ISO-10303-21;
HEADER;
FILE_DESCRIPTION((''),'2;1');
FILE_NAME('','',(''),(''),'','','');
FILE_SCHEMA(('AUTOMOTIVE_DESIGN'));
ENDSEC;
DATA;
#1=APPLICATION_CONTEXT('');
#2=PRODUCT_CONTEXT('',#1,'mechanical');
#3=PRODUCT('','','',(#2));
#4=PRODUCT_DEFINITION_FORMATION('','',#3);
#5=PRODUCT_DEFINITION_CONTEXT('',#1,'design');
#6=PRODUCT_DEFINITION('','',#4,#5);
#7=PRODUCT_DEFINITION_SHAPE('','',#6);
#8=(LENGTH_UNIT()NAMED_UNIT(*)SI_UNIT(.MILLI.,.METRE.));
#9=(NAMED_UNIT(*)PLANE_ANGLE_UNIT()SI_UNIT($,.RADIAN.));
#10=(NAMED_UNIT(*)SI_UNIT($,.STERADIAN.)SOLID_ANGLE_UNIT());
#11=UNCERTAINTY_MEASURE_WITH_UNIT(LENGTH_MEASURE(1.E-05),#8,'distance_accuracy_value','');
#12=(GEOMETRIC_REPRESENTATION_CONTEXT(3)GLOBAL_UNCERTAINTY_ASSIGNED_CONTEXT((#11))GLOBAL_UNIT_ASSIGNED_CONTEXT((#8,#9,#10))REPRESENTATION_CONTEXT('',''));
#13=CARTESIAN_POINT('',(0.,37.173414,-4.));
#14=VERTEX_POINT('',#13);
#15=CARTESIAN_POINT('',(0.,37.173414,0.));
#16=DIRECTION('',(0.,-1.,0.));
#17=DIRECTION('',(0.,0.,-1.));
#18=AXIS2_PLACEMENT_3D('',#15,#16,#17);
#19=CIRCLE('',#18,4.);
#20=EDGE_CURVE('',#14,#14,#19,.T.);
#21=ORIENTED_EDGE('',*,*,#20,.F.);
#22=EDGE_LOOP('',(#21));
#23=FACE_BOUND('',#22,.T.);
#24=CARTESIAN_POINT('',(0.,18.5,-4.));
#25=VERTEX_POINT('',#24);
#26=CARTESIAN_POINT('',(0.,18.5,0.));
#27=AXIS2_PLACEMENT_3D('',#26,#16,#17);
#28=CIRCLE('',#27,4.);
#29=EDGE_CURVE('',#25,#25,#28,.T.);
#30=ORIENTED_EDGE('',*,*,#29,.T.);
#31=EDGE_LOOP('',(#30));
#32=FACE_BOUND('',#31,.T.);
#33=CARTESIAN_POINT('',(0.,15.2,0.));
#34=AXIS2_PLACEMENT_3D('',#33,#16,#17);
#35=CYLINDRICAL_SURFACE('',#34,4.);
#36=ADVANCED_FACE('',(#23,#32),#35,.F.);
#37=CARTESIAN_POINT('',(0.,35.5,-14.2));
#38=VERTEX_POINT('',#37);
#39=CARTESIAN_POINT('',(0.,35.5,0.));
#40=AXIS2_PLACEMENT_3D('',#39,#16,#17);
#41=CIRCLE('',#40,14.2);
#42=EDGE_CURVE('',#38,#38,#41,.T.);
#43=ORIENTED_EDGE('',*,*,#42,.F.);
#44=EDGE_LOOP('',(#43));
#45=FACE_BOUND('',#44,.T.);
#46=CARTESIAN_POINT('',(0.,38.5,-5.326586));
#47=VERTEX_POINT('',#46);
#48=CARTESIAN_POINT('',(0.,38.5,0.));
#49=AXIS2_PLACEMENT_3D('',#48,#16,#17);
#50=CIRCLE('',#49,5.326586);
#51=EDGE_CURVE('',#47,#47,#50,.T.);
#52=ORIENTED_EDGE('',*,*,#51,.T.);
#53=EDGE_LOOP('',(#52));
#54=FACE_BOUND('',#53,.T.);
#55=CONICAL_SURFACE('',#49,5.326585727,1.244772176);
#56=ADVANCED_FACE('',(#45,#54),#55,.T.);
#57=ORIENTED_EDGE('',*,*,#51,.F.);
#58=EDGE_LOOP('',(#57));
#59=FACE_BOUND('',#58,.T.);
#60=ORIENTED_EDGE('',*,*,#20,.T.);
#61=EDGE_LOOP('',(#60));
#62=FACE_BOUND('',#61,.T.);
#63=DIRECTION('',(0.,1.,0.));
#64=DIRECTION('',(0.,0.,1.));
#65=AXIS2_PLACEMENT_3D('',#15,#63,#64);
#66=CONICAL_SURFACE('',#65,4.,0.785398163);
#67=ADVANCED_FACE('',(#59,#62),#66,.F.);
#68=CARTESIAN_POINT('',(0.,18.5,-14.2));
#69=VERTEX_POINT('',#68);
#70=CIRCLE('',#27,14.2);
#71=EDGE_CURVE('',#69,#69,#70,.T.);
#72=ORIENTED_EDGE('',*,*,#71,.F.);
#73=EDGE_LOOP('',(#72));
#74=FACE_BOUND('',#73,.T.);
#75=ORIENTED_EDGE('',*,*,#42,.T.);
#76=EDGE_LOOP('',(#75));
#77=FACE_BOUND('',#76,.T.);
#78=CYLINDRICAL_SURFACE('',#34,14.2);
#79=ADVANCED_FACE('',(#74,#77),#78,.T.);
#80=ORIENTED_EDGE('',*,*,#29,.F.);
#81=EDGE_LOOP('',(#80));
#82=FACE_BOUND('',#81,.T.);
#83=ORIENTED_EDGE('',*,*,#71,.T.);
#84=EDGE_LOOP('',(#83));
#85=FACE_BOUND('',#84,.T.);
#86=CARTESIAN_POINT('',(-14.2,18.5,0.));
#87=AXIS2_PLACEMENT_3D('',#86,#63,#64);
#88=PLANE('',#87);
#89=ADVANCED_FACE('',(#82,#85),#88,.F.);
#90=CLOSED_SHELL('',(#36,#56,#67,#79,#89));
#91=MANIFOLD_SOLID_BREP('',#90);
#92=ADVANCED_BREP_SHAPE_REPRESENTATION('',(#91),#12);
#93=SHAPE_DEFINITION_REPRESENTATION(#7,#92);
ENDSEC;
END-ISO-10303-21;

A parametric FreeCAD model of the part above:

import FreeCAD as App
import Part
import Sketcher

V = App.Vector
Q = App.Units.Quantity

doc = App.newDocument("Part")
body = doc.addObject("PartDesign::Body", "Body")

# Sketch on XY plane
sketch1 = doc.addObject("Sketcher::SketchObject", "Sketch")
body.addObject(sketch1)
sketch1.AttachmentSupport = (doc.XY_Plane, [""])
sketch1.MapMode = "FlatFace"
sketch1.addGeometry(Part.LineSegment(V(-14.2, 18.5, 0), V(-4, 18.5, 0)), False)
sketch1.addGeometry(Part.LineSegment(V(-4, 18.5, 0), V(-4, 37.2, 0)), False)
sketch1.addGeometry(Part.LineSegment(V(-4, 37.2, 0), V(-5.3, 38.5, 0)), False)
sketch1.addGeometry(Part.LineSegment(V(-5.3, 38.5, 0), V(-14.2, 35.5, 0)), False)
sketch1.addGeometry(Part.LineSegment(V(-14.2, 35.5, 0), V(-14.2, 18.5, 0)), False)
sketch1.addConstraint(Sketcher.Constraint("Coincident", 0, 2, 1, 1))
sketch1.addConstraint(Sketcher.Constraint("Coincident", 1, 2, 2, 1))
sketch1.addConstraint(Sketcher.Constraint("Coincident", 2, 2, 3, 1))
sketch1.addConstraint(Sketcher.Constraint("Coincident", 3, 2, 4, 1))
sketch1.addConstraint(Sketcher.Constraint("Coincident", 4, 2, 0, 1))
sketch1.addConstraint(Sketcher.Constraint("Horizontal", 0))
sketch1.addConstraint(Sketcher.Constraint("Vertical", 1))
sketch1.addConstraint(Sketcher.Constraint("Vertical", 4))
sketch1.addConstraint(Sketcher.Constraint("DistanceY", 4, 2, 4, 1, 17.0))
sketch1.addConstraint(Sketcher.Constraint("Angle", 2, Q("135 deg")))
sketch1.addConstraint(Sketcher.Constraint("DistanceX", 0, 1, 0, 2, 10.2))
sketch1.addConstraint(Sketcher.Constraint("DistanceX", 0, 2, -1, 1, 4.0))
sketch1.addConstraint(Sketcher.Constraint("DistanceY", 0, 2, 2, 2, 20.0))
sketch1.addConstraint(Sketcher.Constraint("DistanceY", -1, 1, 0, 2, 18.5))
sketch1.addConstraint(Sketcher.Constraint("Distance", 3, 9.366829))
revolution = doc.addObject("PartDesign::Revolution", "Revolution")
body.addObject(revolution)
revolution.Profile = sketch1
revolution.ReferenceAxis = (sketch1, ["V_Axis"])
revolution.Angle = 360

doc.recompute()
